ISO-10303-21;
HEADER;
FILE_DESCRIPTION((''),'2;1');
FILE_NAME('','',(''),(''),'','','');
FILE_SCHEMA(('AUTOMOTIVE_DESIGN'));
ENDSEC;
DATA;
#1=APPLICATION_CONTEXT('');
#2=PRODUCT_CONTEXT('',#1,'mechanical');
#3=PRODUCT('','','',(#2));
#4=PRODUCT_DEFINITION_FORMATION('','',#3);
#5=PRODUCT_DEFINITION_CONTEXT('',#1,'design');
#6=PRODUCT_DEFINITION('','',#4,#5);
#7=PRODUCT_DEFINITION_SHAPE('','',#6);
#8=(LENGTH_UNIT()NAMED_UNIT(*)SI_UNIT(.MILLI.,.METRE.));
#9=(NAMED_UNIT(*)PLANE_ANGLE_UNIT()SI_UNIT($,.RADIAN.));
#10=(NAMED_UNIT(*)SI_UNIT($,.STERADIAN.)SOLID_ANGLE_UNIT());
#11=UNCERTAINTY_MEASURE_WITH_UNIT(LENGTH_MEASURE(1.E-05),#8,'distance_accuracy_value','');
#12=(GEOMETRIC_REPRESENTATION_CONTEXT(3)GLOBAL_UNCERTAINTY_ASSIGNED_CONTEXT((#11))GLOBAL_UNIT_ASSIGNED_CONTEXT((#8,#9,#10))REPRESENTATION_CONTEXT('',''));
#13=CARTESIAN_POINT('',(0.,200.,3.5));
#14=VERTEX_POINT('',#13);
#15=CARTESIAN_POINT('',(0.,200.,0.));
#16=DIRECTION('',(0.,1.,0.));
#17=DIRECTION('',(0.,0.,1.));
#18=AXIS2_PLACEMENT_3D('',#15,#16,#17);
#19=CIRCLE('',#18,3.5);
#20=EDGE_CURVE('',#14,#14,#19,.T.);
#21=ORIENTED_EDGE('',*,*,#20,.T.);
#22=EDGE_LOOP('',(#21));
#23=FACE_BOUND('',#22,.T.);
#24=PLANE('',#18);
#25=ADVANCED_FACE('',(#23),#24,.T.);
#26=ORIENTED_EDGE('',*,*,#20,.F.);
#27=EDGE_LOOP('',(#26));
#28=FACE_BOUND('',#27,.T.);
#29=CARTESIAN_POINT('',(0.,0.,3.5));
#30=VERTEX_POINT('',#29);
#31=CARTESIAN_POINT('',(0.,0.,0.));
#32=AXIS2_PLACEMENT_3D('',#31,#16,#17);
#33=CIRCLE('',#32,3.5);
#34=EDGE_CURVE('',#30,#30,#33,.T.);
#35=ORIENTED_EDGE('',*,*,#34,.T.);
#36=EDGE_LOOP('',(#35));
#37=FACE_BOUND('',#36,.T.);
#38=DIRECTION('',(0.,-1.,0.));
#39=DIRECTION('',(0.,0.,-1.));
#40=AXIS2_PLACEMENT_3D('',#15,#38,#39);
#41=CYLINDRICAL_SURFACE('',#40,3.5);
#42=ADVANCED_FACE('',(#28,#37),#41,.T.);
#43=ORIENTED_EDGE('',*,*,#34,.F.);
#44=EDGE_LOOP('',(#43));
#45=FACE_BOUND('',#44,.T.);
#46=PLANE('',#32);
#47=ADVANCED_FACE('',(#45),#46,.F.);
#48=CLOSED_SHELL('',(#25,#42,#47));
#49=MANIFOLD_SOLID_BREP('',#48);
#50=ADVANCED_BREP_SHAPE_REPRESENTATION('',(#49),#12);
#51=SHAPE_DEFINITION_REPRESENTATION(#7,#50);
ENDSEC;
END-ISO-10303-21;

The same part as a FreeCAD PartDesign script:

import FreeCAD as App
import Part
import Sketcher
from FreeCAD import Vector

doc = App.newDocument("Part")
body = doc.addObject("PartDesign::Body", "Body")

sketch1 = body.newObject("Sketcher::SketchObject", "Sketch")
sketch1.AttachmentSupport = (doc.getObject("XZ_Plane"), [""])
sketch1.MapMode = "FlatFace"
sketch1.addGeometry(Part.Circle(Vector(0, 0, 0), Vector(0, 0, 1), 3.5), False)
sketch1.addConstraint(Sketcher.Constraint("Coincident", 0, 3, -1, 1))
sketch1.addConstraint(Sketcher.Constraint("Diameter", 0, 7.0))
pad1 = body.newObject("PartDesign::Pad", "Pad")
pad1.Profile = sketch1
pad1.Length = 200
pad1.Reversed = True

doc.recompute()
